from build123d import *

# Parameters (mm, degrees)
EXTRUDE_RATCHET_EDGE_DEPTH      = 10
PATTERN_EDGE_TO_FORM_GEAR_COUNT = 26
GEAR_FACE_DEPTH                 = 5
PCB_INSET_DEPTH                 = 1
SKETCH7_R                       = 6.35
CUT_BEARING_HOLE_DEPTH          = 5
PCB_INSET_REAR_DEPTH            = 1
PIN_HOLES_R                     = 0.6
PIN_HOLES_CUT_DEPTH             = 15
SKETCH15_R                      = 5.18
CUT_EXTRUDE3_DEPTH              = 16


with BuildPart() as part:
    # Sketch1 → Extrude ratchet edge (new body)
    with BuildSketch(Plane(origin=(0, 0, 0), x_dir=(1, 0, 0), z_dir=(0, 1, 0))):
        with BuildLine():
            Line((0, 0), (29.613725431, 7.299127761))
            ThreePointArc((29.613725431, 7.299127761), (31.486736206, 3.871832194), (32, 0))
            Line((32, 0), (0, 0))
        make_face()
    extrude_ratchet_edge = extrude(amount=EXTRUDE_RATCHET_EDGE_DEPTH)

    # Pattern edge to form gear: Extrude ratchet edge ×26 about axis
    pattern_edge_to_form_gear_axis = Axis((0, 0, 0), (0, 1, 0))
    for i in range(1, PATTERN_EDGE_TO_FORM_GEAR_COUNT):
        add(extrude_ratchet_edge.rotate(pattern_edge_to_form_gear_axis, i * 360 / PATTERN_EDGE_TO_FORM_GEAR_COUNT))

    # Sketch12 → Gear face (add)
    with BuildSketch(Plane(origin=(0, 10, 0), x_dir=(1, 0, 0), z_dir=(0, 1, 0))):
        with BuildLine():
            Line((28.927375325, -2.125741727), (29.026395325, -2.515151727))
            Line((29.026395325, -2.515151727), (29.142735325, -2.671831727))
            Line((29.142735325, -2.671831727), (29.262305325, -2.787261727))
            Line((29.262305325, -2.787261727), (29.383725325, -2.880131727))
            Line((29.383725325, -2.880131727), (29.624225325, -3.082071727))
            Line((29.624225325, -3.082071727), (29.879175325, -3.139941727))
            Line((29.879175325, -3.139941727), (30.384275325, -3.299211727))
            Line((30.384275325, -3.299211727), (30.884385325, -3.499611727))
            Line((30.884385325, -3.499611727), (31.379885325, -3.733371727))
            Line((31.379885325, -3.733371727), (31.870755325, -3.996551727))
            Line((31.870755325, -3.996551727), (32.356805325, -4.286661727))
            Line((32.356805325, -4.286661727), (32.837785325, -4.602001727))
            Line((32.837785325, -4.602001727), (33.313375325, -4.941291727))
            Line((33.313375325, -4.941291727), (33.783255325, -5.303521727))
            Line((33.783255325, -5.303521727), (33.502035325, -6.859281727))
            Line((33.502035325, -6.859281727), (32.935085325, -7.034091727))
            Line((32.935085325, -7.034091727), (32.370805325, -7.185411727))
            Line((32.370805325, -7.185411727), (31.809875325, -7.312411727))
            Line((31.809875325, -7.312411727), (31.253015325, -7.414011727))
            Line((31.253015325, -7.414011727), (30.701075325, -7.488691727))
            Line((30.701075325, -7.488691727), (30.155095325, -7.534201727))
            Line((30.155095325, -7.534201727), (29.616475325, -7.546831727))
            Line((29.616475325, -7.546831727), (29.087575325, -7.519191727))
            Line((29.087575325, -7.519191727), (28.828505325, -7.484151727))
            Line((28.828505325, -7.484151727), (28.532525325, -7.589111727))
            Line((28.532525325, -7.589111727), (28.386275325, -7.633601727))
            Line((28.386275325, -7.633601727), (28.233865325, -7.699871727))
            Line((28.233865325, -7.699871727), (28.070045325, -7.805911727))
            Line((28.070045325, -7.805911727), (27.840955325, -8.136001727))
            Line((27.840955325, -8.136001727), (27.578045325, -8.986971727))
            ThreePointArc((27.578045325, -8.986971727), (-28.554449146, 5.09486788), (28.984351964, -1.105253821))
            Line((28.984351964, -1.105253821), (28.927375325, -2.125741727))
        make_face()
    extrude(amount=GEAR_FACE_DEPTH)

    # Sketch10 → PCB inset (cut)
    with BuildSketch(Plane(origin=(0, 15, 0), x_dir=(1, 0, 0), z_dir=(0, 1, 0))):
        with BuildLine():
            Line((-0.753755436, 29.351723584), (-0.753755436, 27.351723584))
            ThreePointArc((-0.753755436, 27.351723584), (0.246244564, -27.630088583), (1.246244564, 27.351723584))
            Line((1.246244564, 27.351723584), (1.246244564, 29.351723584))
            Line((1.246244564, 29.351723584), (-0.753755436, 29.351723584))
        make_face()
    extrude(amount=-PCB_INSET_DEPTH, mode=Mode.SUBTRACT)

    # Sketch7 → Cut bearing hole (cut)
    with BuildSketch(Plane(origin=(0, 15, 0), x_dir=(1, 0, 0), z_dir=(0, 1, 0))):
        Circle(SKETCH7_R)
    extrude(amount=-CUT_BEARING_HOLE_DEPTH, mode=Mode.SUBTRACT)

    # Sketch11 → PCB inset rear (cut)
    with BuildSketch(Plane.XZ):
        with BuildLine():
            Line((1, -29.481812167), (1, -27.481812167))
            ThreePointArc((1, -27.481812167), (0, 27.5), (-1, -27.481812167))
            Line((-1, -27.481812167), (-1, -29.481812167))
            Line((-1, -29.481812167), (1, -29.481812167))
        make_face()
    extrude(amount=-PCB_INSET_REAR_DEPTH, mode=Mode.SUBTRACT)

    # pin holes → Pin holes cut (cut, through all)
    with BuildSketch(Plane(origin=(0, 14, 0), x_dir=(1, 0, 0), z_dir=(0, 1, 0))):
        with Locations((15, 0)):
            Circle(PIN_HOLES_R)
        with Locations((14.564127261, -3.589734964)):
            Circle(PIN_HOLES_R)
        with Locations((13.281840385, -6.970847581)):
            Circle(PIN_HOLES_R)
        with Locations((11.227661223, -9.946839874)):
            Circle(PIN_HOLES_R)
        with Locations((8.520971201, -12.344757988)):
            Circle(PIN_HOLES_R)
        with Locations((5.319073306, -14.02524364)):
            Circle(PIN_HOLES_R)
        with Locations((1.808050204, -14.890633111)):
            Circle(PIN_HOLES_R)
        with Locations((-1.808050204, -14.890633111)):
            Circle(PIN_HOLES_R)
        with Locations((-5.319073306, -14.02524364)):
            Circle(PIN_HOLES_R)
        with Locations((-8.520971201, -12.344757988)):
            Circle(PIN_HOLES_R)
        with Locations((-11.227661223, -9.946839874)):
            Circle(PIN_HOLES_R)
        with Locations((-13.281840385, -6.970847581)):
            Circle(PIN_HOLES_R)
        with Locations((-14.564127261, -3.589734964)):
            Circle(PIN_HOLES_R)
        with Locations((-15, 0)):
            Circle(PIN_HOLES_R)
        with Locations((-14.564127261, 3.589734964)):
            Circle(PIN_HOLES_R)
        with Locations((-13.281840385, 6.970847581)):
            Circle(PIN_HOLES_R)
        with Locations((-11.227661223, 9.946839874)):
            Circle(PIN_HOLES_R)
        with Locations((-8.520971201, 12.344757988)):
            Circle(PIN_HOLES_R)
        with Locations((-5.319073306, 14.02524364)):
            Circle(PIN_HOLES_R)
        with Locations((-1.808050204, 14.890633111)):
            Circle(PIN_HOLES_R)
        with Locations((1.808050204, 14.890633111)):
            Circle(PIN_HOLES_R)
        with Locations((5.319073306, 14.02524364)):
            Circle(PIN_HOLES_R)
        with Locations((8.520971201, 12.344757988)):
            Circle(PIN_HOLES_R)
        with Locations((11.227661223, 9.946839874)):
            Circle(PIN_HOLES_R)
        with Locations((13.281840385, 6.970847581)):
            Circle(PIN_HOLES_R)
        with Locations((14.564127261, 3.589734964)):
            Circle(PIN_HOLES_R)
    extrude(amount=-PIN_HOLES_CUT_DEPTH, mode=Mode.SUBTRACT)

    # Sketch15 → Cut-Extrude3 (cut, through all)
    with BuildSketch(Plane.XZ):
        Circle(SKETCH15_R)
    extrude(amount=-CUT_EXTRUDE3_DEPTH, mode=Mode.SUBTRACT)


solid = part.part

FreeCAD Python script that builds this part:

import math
import FreeCAD as App
import Part
import Sketcher

V = App.Vector
Q = App.Units.Quantity

doc = App.newDocument("Part")
body = doc.addObject("PartDesign::Body", "Body")

# Sketch on XZ plane
sketch1 = body.newObject("Sketcher::SketchObject", "Sketch")
sketch1.AttachmentSupport = (doc.getObject("XZ_Plane"), [""])
sketch1.MapMode = "FlatFace"
sketch1.addGeometry([
    Part.LineSegment(V(30, -7, 0), V(0, 0, 0)),
    Part.LineSegment(V(0, 0, 0), V(32, 0, 0)),
    Part.ArcOfCircle(Part.Circle(V(21, -1, 0), V(0, 0, 1), 11), math.radians(-39), math.radians(3)),
], False)
sketch1.addConstraint([
    Sketcher.Constraint("Coincident", 0, 2, 1, 1),
    Sketcher.Constraint("Coincident", 1, 2, 2, 2),
    Sketcher.Constraint("Coincident", 2, 1, 0, 1),
    Sketcher.Constraint("Horizontal", 1),
    Sketcher.Constraint("Coincident", 0, 2, -1, 1),
    Sketcher.Constraint("DistanceX", 1, 1, 1, 2, Q("32 mm")),
    Sketcher.Constraint("Distance", 0, Q("30.5 mm")),
    Sketcher.Constraint("Radius", 2, Q("10.663264 mm")),
    Sketcher.Constraint("DistanceX", -1, 1, 2, 3, Q("21.351362 mm")),
])
pad1 = body.newObject("PartDesign::Pad", "Pad")
pad1.Profile = sketch1
pad1.Length = 10
pad1.Reversed = True
doc.recompute()

polarpattern = body.newObject("PartDesign::PolarPattern", "PolarPattern")
polarpattern.Originals = [pad1]
polarpattern.Axis = (doc.getObject("Y_Axis"), [""])
polarpattern.Angle = 360
polarpattern.Occurrences = 26
body.Tip = polarpattern

# Sketch on XZ plane
sketch2 = body.newObject("Sketcher::SketchObject", "Sketch001")
sketch2.AttachmentSupport = (doc.getObject("XZ_Plane"), [""])
sketch2.MapMode = "FlatFace"
sketch2.AttachmentOffset = App.Placement(V(0, 0, -10), App.Rotation())
sketch2.addGeometry([
    Part.LineSegment(V(29.03, 2.52, 0), V(28.93, 2.13, 0)),  # 0
    Part.LineSegment(V(28.93, 2.13, 0), V(28.98, 1.11, 0)),  # 1
    Part.ArcOfCircle(Part.Circle(V(0, 0, 0), V(0, 0, 1), 29.01), math.radians(18), math.radians(362)),  # 2
    Part.LineSegment(V(27.58, 8.99, 0), V(27.84, 8.14, 0)),  # 3
    Part.LineSegment(V(27.84, 8.14, 0), V(28.07, 7.81, 0)),  # 4
    Part.LineSegment(V(28.07, 7.81, 0), V(28.23, 7.7, 0)),  # 5
    Part.LineSegment(V(28.23, 7.7, 0), V(28.39, 7.63, 0)),  # 6
    Part.LineSegment(V(28.39, 7.63, 0), V(28.53, 7.59, 0)),  # 7
    Part.LineSegment(V(28.53, 7.59, 0), V(28.83, 7.48, 0)),  # 8
    Part.LineSegment(V(28.83, 7.48, 0), V(29.09, 7.52, 0)),  # 9
    Part.LineSegment(V(29.09, 7.52, 0), V(29.62, 7.55, 0)),  # 10
    Part.LineSegment(V(29.62, 7.55, 0), V(30.16, 7.53, 0)),  # 11
    Part.LineSegment(V(30.16, 7.53, 0), V(30.7, 7.49, 0)),  # 12
    Part.LineSegment(V(30.7, 7.49, 0), V(31.25, 7.41, 0)),  # 13
    Part.LineSegment(V(31.25, 7.41, 0), V(31.81, 7.31, 0)),  # 14
    Part.LineSegment(V(31.81, 7.31, 0), V(32.37, 7.19, 0)),  # 15
    Part.LineSegment(V(32.37, 7.19, 0), V(32.94, 7.03, 0)),  # 16
    Part.LineSegment(V(32.94, 7.03, 0), V(33.5, 6.86, 0)),  # 17
    Part.LineSegment(V(33.5, 6.86, 0), V(33.78, 5.3, 0)),  # 18
    Part.LineSegment(V(33.78, 5.3, 0), V(33.31, 4.94, 0)),  # 19
    Part.LineSegment(V(33.31, 4.94, 0), V(32.84, 4.6, 0)),  # 20
    Part.LineSegment(V(32.84, 4.6, 0), V(32.36, 4.29, 0)),  # 21
    Part.LineSegment(V(32.36, 4.29, 0), V(31.87, 4, 0)),  # 22
    Part.LineSegment(V(31.87, 4, 0), V(31.38, 3.73, 0)),  # 23
    Part.LineSegment(V(31.38, 3.73, 0), V(30.88, 3.5, 0)),  # 24
    Part.LineSegment(V(30.88, 3.5, 0), V(30.38, 3.3, 0)),  # 25
    Part.LineSegment(V(30.38, 3.3, 0), V(29.88, 3.14, 0)),  # 26
    Part.LineSegment(V(29.88, 3.14, 0), V(29.62, 3.08, 0)),  # 27
    Part.LineSegment(V(29.62, 3.08, 0), V(29.38, 2.88, 0)),  # 28
    Part.LineSegment(V(29.38, 2.88, 0), V(29.26, 2.79, 0)),  # 29
    Part.LineSegment(V(29.26, 2.79, 0), V(29.14, 2.67, 0)),  # 30
    Part.LineSegment(V(29.14, 2.67, 0), V(29.03, 2.52, 0)),  # 31
], False)
sketch2.addConstraint([
    Sketcher.Constraint("Coincident", 0, 2, 1, 1),
    Sketcher.Constraint("Coincident", 1, 2, 2, 2),
    Sketcher.Constraint("Coincident", 2, 1, 3, 1),
    Sketcher.Constraint("Coincident", 3, 2, 4, 1),
    Sketcher.Constraint("Coincident", 4, 2, 5, 1),
    Sketcher.Constraint("Coincident", 5, 2, 6, 1),
    Sketcher.Constraint("Coincident", 6, 2, 7, 1),
    Sketcher.Constraint("Coincident", 7, 2, 8, 1),
    Sketcher.Constraint("Coincident", 8, 2, 9, 1),
    Sketcher.Constraint("Coincident", 9, 2, 10, 1),
    Sketcher.Constraint("Coincident", 10, 2, 11, 1),
    Sketcher.Constraint("Coincident", 11, 2, 12, 1),
    Sketcher.Constraint("Coincident", 12, 2, 13, 1),
    Sketcher.Constraint("Coincident", 13, 2, 14, 1),
    Sketcher.Constraint("Coincident", 14, 2, 15, 1),
    Sketcher.Constraint("Coincident", 15, 2, 16, 1),
    Sketcher.Constraint("Coincident", 16, 2, 17, 1),
    Sketcher.Constraint("Coincident", 17, 2, 18, 1),
    Sketcher.Constraint("Coincident", 18, 2, 19, 1),
    Sketcher.Constraint("Coincident", 19, 2, 20, 1),
    Sketcher.Constraint("Coincident", 20, 2, 21, 1),
    Sketcher.Constraint("Coincident", 21, 2, 22, 1),
    Sketcher.Constraint("Coincident", 22, 2, 23, 1),
    Sketcher.Constraint("Coincident", 23, 2, 24, 1),
    Sketcher.Constraint("Coincident", 24, 2, 25, 1),
    Sketcher.Constraint("Coincident", 25, 2, 26, 1),
    Sketcher.Constraint("Coincident", 26, 2, 27, 1),
    Sketcher.Constraint("Coincident", 27, 2, 28, 1),
    Sketcher.Constraint("Coincident", 28, 2, 29, 1),
    Sketcher.Constraint("Coincident", 29, 2, 30, 1),
    Sketcher.Constraint("Coincident", 30, 2, 31, 1),
    Sketcher.Constraint("Coincident", 31, 2, 0, 1),
    Sketcher.Constraint("Coincident", 2, 3, -1, 1),
    Sketcher.Constraint("Equal", 13, 23),
    Sketcher.Constraint("Equal", 12, 24),
    Sketcher.Constraint("Equal", 11, 25),
    Sketcher.Constraint("Equal", 8, 28),
    Sketcher.Constraint("Equal", 6, 30),
    Sketcher.Constraint("DistanceY", -1, 1, 3, 2, Q("8.136002 mm")),
    Sketcher.Constraint("DistanceY", -1, 1, 20, 2, Q("4.602002 mm")),
    Sketcher.Constraint("Radius", 2, Q("29.005418 mm")),
    Sketcher.Constraint("DistanceX", 2, 1, 4, 2, Q("0.492 mm")),
    Sketcher.Constraint("DistanceY", 15, 2, 14, 2, Q("0.127 mm")),
    Sketcher.Constraint("Distance", 4, Q("0.401798 mm")),
    Sketcher.Constraint("DistanceY", -1, 1, 6, 2, Q("7.633602 mm")),
    Sketcher.Constraint("DistanceY", -1, 1, 11, 2, Q("7.534202 mm")),
    Sketcher.Constraint("DistanceY", 5, 2, 2, 1, Q("1.2871 mm")),
    Sketcher.Constraint("DistanceX", 6, 2, 0, 2, Q("0.5411 mm")),
    Sketcher.Constraint("DistanceY", 7, 2, 4, 2, Q("0.2168 mm")),
    Sketcher.Constraint("DistanceX", 6, 2, 9, 2, Q("0.7013 mm")),
    Sketcher.Constraint("DistanceX", 9, 2, 10, 2, Q("0.5289 mm")),
    Sketcher.Constraint("DistanceX", 10, 2, 12, 2, Q("1.0846 mm")),
    Sketcher.Constraint("DistanceY", 12, 2, 9, 2, Q("0.0305 mm")),
    Sketcher.Constraint("DistanceY", 14, 2, 13, 2, Q("0.1016 mm")),
    Sketcher.Constraint("DistanceX", 12, 2, 14, 2, Q("1.1088 mm")),
    Sketcher.Constraint("DistanceY", 16, 2, 12, 2, Q("0.4546 mm")),
    Sketcher.Constraint("DistanceY", 19, 2, 16, 2, Q("2.0928 mm")),
    Sketcher.Constraint("DistanceX", 14, 2, 19, 2, Q("1.5035 mm")),
    Sketcher.Constraint("DistanceX", 20, 2, 16, 2, Q("0.0973 mm")),
    Sketcher.Constraint("DistanceX", 22, 2, 18, 2, Q("1.9125 mm")),
    Sketcher.Constraint("DistanceX", 23, 2, 20, 2, Q("1.4579 mm")),
    Sketcher.Constraint("DistanceX", 24, 2, 23, 2, Q("0.4955 mm")),
    Sketcher.Constraint("DistanceY", 25, 2, 24, 2, Q("0.2004 mm")),
    Sketcher.Constraint("DistanceX", 0, 2, 25, 2, Q("1.4569 mm")),
    Sketcher.Constraint("DistanceX", 26, 2, 25, 2, Q("0.5051 mm")),
    Sketcher.Constraint("DistanceY", 0, 2, 26, 2, Q("1.0142 mm")),
    Sketcher.Constraint("DistanceY", 27, 2, 23, 2, Q("0.6513 mm")),
    Sketcher.Constraint("DistanceX", 28, 2, 27, 2, Q("0.2405 mm")),
    Sketcher.Constraint("DistanceY", 30, 2, 28, 2, Q("0.2083 mm")),
    Sketcher.Constraint("Distance", 8, Q("0.314039 mm")),
    Sketcher.Constraint("Distance", 9, Q("0.261429 mm")),
    Sketcher.Constraint("Distance", 10, Q("0.529622 mm")),
    Sketcher.Constraint("Distance", 11, Q("0.538768 mm")),
    Sketcher.Constraint("Distance", 13, Q("0.556969 mm")),
    Sketcher.Constraint("Distance", 17, Q("0.593288 mm")),
    Sketcher.Constraint("Distance", 20, Q("0.584212 mm")),
    Sketcher.Constraint("Distance", 31, Q("0.19515 mm")),
    Sketcher.Constraint("DistanceY", -1, 1, 0, 2, Q("2.125742 mm")),
    Sketcher.Constraint("DistanceX", -1, 1, 1, 2, Q("28.984352 mm")),
    Sketcher.Constraint("DistanceY", -1, 1, 2, 1, Q("8.986972 mm")),
    Sketcher.Constraint("DistanceY", -1, 1, 4, 2, Q("7.805912 mm")),
    Sketcher.Constraint("DistanceY", -1, 1, 8, 2, Q("7.484152 mm")),
    Sketcher.Constraint("DistanceY", -1, 1, 13, 2, Q("7.414012 mm")),
    Sketcher.Constraint("DistanceY", -1, 1, 17, 2, Q("6.859282 mm")),
    Sketcher.Constraint("DistanceY", -1, 1, 18, 2, Q("5.303522 mm")),
    Sketcher.Constraint("DistanceY", -1, 1, 21, 2, Q("4.286662 mm")),
    Sketcher.Constraint("DistanceY", -1, 1, 22, 2, Q("3.996552 mm")),
    Sketcher.Constraint("DistanceY", -1, 1, 23, 2, Q("3.733372 mm")),
    Sketcher.Constraint("DistanceY", -1, 1, 29, 2, Q("2.787262 mm")),
    Sketcher.Constraint("DistanceY", -1, 1, 31, 2, Q("2.515152 mm")),
    Sketcher.Constraint("DistanceX", 2, 1, 0, 2, Q("1.34933 mm")),
    Sketcher.Constraint("DistanceX", 4, 2, 5, 2, Q("0.16382 mm")),
    Sketcher.Constraint("DistanceX", 14, 2, 15, 2, Q("0.56093 mm")),
    Sketcher.Constraint("DistanceX", 21, 2, 20, 2, Q("0.48098 mm")),
    Sketcher.Constraint("DistanceX", 27, 2, 26, 2, Q("0.25495 mm")),
    Sketcher.Constraint("DistanceX", 29, 2, 28, 2, Q("0.12142 mm")),
])
pad2 = body.newObject("PartDesign::Pad", "Pad001")
pad2.Profile = sketch2
pad2.Length = 5
pad2.Reversed = True

# Sketch on XZ plane
sketch3 = body.newObject("Sketcher::SketchObject", "Sketch002")
sketch3.AttachmentSupport = (doc.getObject("XZ_Plane"), [""])
sketch3.MapMode = "FlatFace"
sketch3.AttachmentOffset = App.Placement(V(0, 0, -15), App.Rotation())
sketch3.addGeometry([
    Part.LineSegment(V(-0.8, -29.4, 0), V(-0.8, -27.4, 0)),
    Part.ArcOfCircle(Part.Circle(V(0.2, 0.1, 0), V(0, 0, 1), 27.5), math.radians(-88), math.radians(268)),
    Part.LineSegment(V(1.2, -27.4, 0), V(1.2, -29.4, 0)),
    Part.LineSegment(V(1.2, -29.4, 0), V(-0.8, -29.4, 0)),
], False)
sketch3.addConstraint([
    Sketcher.Constraint("Coincident", 0, 2, 1, 2),
    Sketcher.Constraint("Coincident", 1, 1, 2, 1),
    Sketcher.Constraint("Coincident", 2, 2, 3, 1),
    Sketcher.Constraint("Coincident", 3, 2, 0, 1),
    Sketcher.Constraint("Vertical", 0),
    Sketcher.Constraint("Vertical", 2),
    Sketcher.Constraint("Horizontal", 3),
    Sketcher.Constraint("Horizontal", 0, 2, 1, 1),
    Sketcher.Constraint("Equal", 3, 0),
    Sketcher.Constraint("Radius", 1, Q("27.5 mm")),
    Sketcher.Constraint("DistanceX", 3, 2, 3, 1, Q("2 mm")),
    Sketcher.Constraint("DistanceY", -1, 1, 1, 3, Q("0.130089 mm")),
    Sketcher.Constraint("DistanceX", -1, 1, 1, 3, Q("0.246245 mm")),
])
pocket1 = body.newObject("PartDesign::Pocket", "Pocket")
pocket1.Profile = sketch3
pocket1.Length = 1
pocket1.Reversed = True

# Sketch on XZ plane
sketch4 = body.newObject("Sketcher::SketchObject", "Sketch003")
sketch4.AttachmentSupport = (doc.getObject("XZ_Plane"), [""])
sketch4.MapMode = "FlatFace"
sketch4.AttachmentOffset = App.Placement(V(0, 0, -15), App.Rotation())
sketch4.addGeometry(Part.Circle(V(0, 0, 0), V(0, 0, 1), 6), False)
sketch4.addConstraint([
    Sketcher.Constraint("Coincident", 0, 3, -1, 1),
    Sketcher.Constraint("Diameter", 0, Q("12.7 mm")),
])
pocket2 = body.newObject("PartDesign::Pocket", "Pocket001")
pocket2.Profile = sketch4
pocket2.Length = 5
pocket2.Reversed = True

# Sketch on XZ plane
sketch5 = body.newObject("Sketcher::SketchObject", "Sketch004")
sketch5.AttachmentSupport = (doc.getObject("XZ_Plane"), [""])
sketch5.MapMode = "FlatFace"
sketch5.addGeometry([
    Part.LineSegment(V(1, -29.5, 0), V(1, -27.5, 0)),
    Part.ArcOfCircle(Part.Circle(V(0, 0, 0), V(0, 0, 1), 27.5), math.radians(-88), math.radians(268)),
    Part.LineSegment(V(-1, -27.5, 0), V(-1, -29.5, 0)),
    Part.LineSegment(V(-1, -29.5, 0), V(1, -29.5, 0)),
], False)
sketch5.addConstraint([
    Sketcher.Constraint("Coincident", 0, 2, 1, 1),
    Sketcher.Constraint("Coincident", 1, 2, 2, 1),
    Sketcher.Constraint("Coincident", 2, 2, 3, 1),
    Sketcher.Constraint("Coincident", 3, 2, 0, 1),
    Sketcher.Constraint("Vertical", 0),
    Sketcher.Constraint("Vertical", 2),
    Sketcher.Constraint("Horizontal", 3),
    Sketcher.Constraint("Coincident", 1, 3, -1, 1),
    Sketcher.Constraint("Horizontal", 0, 2, 1, 2),
    Sketcher.Constraint("Equal", 3, 0),
    Sketcher.Constraint("Radius", 1, Q("27.5 mm")),
    Sketcher.Constraint("DistanceX", 3, 1, 3, 2, Q("2 mm")),
])
pocket3 = body.newObject("PartDesign::Pocket", "Pocket002")
pocket3.Profile = sketch5
pocket3.Length = 1

# Sketch on XZ plane
sketch6 = body.newObject("Sketcher::SketchObject", "Sketch005")
sketch6.AttachmentSupport = (doc.getObject("XZ_Plane"), [""])
sketch6.MapMode = "FlatFace"
sketch6.AttachmentOffset = App.Placement(V(0, 0, -14), App.Rotation())
sketch6.addGeometry([
    Part.Circle(V(15, 0, 0), V(0, 0, 1), 0.6),  # 0
    Part.Circle(V(14.6, 3.6, 0), V(0, 0, 1), 0.6),  # 1
    Part.Circle(V(13.3, 7, 0), V(0, 0, 1), 0.6),  # 2
    Part.Circle(V(11.2, 9.9, 0), V(0, 0, 1), 0.6),  # 3
    Part.Circle(V(8.5, 12.3, 0), V(0, 0, 1), 0.6),  # 4
    Part.Circle(V(5.3, 14, 0), V(0, 0, 1), 0.6),  # 5
    Part.Circle(V(1.8, 14.9, 0), V(0, 0, 1), 0.6),  # 6
    Part.Circle(V(-1.8, 14.9, 0), V(0, 0, 1), 0.6),  # 7
    Part.Circle(V(-5.3, 14, 0), V(0, 0, 1), 0.6),  # 8
    Part.Circle(V(-8.5, 12.3, 0), V(0, 0, 1), 0.6),  # 9
    Part.Circle(V(-11.2, 9.9, 0), V(0, 0, 1), 0.6),  # 10
    Part.Circle(V(-13.3, 7, 0), V(0, 0, 1), 0.6),  # 11
    Part.Circle(V(-14.6, 3.6, 0), V(0, 0, 1), 0.6),  # 12
    Part.Circle(V(-15, 0, 0), V(0, 0, 1), 0.6),  # 13
    Part.Circle(V(-14.6, -3.6, 0), V(0, 0, 1), 0.6),  # 14
    Part.Circle(V(-13.3, -7, 0), V(0, 0, 1), 0.6),  # 15
    Part.Circle(V(-11.2, -9.9, 0), V(0, 0, 1), 0.6),  # 16
    Part.Circle(V(-8.5, -12.3, 0), V(0, 0, 1), 0.6),  # 17
    Part.Circle(V(-5.3, -14, 0), V(0, 0, 1), 0.6),  # 18
    Part.Circle(V(-1.8, -14.9, 0), V(0, 0, 1), 0.6),  # 19
    Part.Circle(V(1.8, -14.9, 0), V(0, 0, 1), 0.6),  # 20
    Part.Circle(V(5.3, -14, 0), V(0, 0, 1), 0.6),  # 21
    Part.Circle(V(8.5, -12.3, 0), V(0, 0, 1), 0.6),  # 22
    Part.Circle(V(11.2, -9.9, 0), V(0, 0, 1), 0.6),  # 23
    Part.Circle(V(13.3, -7, 0), V(0, 0, 1), 0.6),  # 24
    Part.Circle(V(14.6, -3.6, 0), V(0, 0, 1), 0.6),  # 25
], False)
sketch6.addConstraint([
    Sketcher.Constraint("Equal", 0, 1),
    Sketcher.Constraint("Equal", 1, 2),
    Sketcher.Constraint("Equal", 2, 3),
    Sketcher.Constraint("Equal", 3, 4),
    Sketcher.Constraint("Equal", 4, 5),
    Sketcher.Constraint("Equal", 5, 6),
    Sketcher.Constraint("Equal", 6, 7),
    Sketcher.Constraint("Equal", 7, 8),
    Sketcher.Constraint("Equal", 8, 9),
    Sketcher.Constraint("Equal", 9, 10),
    Sketcher.Constraint("Equal", 10, 11),
    Sketcher.Constraint("Equal", 11, 12),
    Sketcher.Constraint("Equal", 12, 13),
    Sketcher.Constraint("Equal", 13, 14),
    Sketcher.Constraint("Equal", 14, 15),
    Sketcher.Constraint("Equal", 15, 16),
    Sketcher.Constraint("Equal", 16, 17),
    Sketcher.Constraint("Equal", 17, 18),
    Sketcher.Constraint("Equal", 18, 19),
    Sketcher.Constraint("Equal", 19, 20),
    Sketcher.Constraint("Equal", 20, 21),
    Sketcher.Constraint("Equal", 21, 22),
    Sketcher.Constraint("Equal", 22, 23),
    Sketcher.Constraint("Equal", 23, 24),
    Sketcher.Constraint("Equal", 24, 25),
    Sketcher.Constraint("Symmetric", 0, 3, 13, 3, -1, 1),
    Sketcher.Constraint("Symmetric", 1, 3, 14, 3, -1, 1),
    Sketcher.Constraint("Symmetric", 2, 3, 15, 3, -1, 1),
    Sketcher.Constraint("Symmetric", 3, 3, 16, 3, -1, 1),
    Sketcher.Constraint("Symmetric", 4, 3, 17, 3, -1, 1),
    Sketcher.Constraint("Symmetric", 5, 3, 18, 3, -1, 1),
    Sketcher.Constraint("Symmetric", 6, 3, 19, 3, -1, 1),
    Sketcher.Constraint("Symmetric", 7, 3, 20, 3, -1, 1),
    Sketcher.Constraint("Symmetric", 8, 3, 21, 3, -1, 1),
    Sketcher.Constraint("Symmetric", 9, 3, 22, 3, -1, 1),
    Sketcher.Constraint("Symmetric", 10, 3, 23, 3, -1, 1),
    Sketcher.Constraint("Symmetric", 11, 3, 24, 3, -1, 1),
    Sketcher.Constraint("Symmetric", 12, 3, 25, 3, -1, 1),
    Sketcher.Constraint("Symmetric", 6, 3, 7, 3, -2),
    Sketcher.Constraint("Symmetric", 5, 3, 8, 3, -2),
    Sketcher.Constraint("Symmetric", 4, 3, 9, 3, -2),
    Sketcher.Constraint("Symmetric", 3, 3, 10, 3, -2),
    Sketcher.Constraint("Symmetric", 2, 3, 11, 3, -2),
    Sketcher.Constraint("Symmetric", 1, 3, 12, 3, -2),
    Sketcher.Constraint("PointOnObject", 0, 3, -1),
    Sketcher.Constraint("Diameter", 0, Q("1.2 mm")),
    Sketcher.Constraint("DistanceX", -1, 1, 0, 3, Q("15 mm")),
    Sketcher.Constraint("DistanceY", 1, 3, 6, 3, Q("11.300898 mm")),
    Sketcher.Constraint("DistanceX", 7, 3, 6, 3, Q("3.6161 mm")),
    Sketcher.Constraint("DistanceX", -1, 1, 2, 3, Q("13.28184 mm")),
    Sketcher.Constraint("DistanceX", -1, 1, 3, 3, Q("11.227661 mm")),
    Sketcher.Constraint("DistanceY", -1, 1, 3, 3, Q("9.94684 mm")),
    Sketcher.Constraint("DistanceX", -1, 1, 4, 3, Q("8.520971 mm")),
    Sketcher.Constraint("DistanceY", 3, 3, 4, 3, Q("2.397918 mm")),
    Sketcher.Constraint("DistanceY", 2, 3, 4, 3, Q("5.37391 mm")),
    Sketcher.Constraint("DistanceY", 1, 3, 5, 3, Q("10.435509 mm")),
    Sketcher.Constraint("DistanceY", 14, 3, 12, 3, Q("7.17947 mm")),
    Sketcher.Constraint("DistanceX", -1, 1, 1, 3, Q("14.564127 mm")),
    Sketcher.Constraint("DistanceX", -1, 1, 5, 3, Q("5.319073 mm")),
])
pocket4 = body.newObject("PartDesign::Pocket", "Pocket003")
pocket4.Profile = sketch6
pocket4.Type = "ThroughAll"
pocket4.Reversed = True

# Sketch on XZ plane
sketch7 = body.newObject("Sketcher::SketchObject", "Sketch006")
sketch7.AttachmentSupport = (doc.getObject("XZ_Plane"), [""])
sketch7.MapMode = "FlatFace"
sketch7.addGeometry(Part.Circle(V(0, 0, 0), V(0, 0, 1), 5), False)
sketch7.addConstraint([
    Sketcher.Constraint("Coincident", 0, 3, -1, 1),
    Sketcher.Constraint("Diameter", 0, Q("10.36 mm")),
])
pocket5 = body.newObject("PartDesign::Pocket", "Pocket004")
pocket5.Profile = sketch7
pocket5.Type = "ThroughAll"

doc.recompute()
